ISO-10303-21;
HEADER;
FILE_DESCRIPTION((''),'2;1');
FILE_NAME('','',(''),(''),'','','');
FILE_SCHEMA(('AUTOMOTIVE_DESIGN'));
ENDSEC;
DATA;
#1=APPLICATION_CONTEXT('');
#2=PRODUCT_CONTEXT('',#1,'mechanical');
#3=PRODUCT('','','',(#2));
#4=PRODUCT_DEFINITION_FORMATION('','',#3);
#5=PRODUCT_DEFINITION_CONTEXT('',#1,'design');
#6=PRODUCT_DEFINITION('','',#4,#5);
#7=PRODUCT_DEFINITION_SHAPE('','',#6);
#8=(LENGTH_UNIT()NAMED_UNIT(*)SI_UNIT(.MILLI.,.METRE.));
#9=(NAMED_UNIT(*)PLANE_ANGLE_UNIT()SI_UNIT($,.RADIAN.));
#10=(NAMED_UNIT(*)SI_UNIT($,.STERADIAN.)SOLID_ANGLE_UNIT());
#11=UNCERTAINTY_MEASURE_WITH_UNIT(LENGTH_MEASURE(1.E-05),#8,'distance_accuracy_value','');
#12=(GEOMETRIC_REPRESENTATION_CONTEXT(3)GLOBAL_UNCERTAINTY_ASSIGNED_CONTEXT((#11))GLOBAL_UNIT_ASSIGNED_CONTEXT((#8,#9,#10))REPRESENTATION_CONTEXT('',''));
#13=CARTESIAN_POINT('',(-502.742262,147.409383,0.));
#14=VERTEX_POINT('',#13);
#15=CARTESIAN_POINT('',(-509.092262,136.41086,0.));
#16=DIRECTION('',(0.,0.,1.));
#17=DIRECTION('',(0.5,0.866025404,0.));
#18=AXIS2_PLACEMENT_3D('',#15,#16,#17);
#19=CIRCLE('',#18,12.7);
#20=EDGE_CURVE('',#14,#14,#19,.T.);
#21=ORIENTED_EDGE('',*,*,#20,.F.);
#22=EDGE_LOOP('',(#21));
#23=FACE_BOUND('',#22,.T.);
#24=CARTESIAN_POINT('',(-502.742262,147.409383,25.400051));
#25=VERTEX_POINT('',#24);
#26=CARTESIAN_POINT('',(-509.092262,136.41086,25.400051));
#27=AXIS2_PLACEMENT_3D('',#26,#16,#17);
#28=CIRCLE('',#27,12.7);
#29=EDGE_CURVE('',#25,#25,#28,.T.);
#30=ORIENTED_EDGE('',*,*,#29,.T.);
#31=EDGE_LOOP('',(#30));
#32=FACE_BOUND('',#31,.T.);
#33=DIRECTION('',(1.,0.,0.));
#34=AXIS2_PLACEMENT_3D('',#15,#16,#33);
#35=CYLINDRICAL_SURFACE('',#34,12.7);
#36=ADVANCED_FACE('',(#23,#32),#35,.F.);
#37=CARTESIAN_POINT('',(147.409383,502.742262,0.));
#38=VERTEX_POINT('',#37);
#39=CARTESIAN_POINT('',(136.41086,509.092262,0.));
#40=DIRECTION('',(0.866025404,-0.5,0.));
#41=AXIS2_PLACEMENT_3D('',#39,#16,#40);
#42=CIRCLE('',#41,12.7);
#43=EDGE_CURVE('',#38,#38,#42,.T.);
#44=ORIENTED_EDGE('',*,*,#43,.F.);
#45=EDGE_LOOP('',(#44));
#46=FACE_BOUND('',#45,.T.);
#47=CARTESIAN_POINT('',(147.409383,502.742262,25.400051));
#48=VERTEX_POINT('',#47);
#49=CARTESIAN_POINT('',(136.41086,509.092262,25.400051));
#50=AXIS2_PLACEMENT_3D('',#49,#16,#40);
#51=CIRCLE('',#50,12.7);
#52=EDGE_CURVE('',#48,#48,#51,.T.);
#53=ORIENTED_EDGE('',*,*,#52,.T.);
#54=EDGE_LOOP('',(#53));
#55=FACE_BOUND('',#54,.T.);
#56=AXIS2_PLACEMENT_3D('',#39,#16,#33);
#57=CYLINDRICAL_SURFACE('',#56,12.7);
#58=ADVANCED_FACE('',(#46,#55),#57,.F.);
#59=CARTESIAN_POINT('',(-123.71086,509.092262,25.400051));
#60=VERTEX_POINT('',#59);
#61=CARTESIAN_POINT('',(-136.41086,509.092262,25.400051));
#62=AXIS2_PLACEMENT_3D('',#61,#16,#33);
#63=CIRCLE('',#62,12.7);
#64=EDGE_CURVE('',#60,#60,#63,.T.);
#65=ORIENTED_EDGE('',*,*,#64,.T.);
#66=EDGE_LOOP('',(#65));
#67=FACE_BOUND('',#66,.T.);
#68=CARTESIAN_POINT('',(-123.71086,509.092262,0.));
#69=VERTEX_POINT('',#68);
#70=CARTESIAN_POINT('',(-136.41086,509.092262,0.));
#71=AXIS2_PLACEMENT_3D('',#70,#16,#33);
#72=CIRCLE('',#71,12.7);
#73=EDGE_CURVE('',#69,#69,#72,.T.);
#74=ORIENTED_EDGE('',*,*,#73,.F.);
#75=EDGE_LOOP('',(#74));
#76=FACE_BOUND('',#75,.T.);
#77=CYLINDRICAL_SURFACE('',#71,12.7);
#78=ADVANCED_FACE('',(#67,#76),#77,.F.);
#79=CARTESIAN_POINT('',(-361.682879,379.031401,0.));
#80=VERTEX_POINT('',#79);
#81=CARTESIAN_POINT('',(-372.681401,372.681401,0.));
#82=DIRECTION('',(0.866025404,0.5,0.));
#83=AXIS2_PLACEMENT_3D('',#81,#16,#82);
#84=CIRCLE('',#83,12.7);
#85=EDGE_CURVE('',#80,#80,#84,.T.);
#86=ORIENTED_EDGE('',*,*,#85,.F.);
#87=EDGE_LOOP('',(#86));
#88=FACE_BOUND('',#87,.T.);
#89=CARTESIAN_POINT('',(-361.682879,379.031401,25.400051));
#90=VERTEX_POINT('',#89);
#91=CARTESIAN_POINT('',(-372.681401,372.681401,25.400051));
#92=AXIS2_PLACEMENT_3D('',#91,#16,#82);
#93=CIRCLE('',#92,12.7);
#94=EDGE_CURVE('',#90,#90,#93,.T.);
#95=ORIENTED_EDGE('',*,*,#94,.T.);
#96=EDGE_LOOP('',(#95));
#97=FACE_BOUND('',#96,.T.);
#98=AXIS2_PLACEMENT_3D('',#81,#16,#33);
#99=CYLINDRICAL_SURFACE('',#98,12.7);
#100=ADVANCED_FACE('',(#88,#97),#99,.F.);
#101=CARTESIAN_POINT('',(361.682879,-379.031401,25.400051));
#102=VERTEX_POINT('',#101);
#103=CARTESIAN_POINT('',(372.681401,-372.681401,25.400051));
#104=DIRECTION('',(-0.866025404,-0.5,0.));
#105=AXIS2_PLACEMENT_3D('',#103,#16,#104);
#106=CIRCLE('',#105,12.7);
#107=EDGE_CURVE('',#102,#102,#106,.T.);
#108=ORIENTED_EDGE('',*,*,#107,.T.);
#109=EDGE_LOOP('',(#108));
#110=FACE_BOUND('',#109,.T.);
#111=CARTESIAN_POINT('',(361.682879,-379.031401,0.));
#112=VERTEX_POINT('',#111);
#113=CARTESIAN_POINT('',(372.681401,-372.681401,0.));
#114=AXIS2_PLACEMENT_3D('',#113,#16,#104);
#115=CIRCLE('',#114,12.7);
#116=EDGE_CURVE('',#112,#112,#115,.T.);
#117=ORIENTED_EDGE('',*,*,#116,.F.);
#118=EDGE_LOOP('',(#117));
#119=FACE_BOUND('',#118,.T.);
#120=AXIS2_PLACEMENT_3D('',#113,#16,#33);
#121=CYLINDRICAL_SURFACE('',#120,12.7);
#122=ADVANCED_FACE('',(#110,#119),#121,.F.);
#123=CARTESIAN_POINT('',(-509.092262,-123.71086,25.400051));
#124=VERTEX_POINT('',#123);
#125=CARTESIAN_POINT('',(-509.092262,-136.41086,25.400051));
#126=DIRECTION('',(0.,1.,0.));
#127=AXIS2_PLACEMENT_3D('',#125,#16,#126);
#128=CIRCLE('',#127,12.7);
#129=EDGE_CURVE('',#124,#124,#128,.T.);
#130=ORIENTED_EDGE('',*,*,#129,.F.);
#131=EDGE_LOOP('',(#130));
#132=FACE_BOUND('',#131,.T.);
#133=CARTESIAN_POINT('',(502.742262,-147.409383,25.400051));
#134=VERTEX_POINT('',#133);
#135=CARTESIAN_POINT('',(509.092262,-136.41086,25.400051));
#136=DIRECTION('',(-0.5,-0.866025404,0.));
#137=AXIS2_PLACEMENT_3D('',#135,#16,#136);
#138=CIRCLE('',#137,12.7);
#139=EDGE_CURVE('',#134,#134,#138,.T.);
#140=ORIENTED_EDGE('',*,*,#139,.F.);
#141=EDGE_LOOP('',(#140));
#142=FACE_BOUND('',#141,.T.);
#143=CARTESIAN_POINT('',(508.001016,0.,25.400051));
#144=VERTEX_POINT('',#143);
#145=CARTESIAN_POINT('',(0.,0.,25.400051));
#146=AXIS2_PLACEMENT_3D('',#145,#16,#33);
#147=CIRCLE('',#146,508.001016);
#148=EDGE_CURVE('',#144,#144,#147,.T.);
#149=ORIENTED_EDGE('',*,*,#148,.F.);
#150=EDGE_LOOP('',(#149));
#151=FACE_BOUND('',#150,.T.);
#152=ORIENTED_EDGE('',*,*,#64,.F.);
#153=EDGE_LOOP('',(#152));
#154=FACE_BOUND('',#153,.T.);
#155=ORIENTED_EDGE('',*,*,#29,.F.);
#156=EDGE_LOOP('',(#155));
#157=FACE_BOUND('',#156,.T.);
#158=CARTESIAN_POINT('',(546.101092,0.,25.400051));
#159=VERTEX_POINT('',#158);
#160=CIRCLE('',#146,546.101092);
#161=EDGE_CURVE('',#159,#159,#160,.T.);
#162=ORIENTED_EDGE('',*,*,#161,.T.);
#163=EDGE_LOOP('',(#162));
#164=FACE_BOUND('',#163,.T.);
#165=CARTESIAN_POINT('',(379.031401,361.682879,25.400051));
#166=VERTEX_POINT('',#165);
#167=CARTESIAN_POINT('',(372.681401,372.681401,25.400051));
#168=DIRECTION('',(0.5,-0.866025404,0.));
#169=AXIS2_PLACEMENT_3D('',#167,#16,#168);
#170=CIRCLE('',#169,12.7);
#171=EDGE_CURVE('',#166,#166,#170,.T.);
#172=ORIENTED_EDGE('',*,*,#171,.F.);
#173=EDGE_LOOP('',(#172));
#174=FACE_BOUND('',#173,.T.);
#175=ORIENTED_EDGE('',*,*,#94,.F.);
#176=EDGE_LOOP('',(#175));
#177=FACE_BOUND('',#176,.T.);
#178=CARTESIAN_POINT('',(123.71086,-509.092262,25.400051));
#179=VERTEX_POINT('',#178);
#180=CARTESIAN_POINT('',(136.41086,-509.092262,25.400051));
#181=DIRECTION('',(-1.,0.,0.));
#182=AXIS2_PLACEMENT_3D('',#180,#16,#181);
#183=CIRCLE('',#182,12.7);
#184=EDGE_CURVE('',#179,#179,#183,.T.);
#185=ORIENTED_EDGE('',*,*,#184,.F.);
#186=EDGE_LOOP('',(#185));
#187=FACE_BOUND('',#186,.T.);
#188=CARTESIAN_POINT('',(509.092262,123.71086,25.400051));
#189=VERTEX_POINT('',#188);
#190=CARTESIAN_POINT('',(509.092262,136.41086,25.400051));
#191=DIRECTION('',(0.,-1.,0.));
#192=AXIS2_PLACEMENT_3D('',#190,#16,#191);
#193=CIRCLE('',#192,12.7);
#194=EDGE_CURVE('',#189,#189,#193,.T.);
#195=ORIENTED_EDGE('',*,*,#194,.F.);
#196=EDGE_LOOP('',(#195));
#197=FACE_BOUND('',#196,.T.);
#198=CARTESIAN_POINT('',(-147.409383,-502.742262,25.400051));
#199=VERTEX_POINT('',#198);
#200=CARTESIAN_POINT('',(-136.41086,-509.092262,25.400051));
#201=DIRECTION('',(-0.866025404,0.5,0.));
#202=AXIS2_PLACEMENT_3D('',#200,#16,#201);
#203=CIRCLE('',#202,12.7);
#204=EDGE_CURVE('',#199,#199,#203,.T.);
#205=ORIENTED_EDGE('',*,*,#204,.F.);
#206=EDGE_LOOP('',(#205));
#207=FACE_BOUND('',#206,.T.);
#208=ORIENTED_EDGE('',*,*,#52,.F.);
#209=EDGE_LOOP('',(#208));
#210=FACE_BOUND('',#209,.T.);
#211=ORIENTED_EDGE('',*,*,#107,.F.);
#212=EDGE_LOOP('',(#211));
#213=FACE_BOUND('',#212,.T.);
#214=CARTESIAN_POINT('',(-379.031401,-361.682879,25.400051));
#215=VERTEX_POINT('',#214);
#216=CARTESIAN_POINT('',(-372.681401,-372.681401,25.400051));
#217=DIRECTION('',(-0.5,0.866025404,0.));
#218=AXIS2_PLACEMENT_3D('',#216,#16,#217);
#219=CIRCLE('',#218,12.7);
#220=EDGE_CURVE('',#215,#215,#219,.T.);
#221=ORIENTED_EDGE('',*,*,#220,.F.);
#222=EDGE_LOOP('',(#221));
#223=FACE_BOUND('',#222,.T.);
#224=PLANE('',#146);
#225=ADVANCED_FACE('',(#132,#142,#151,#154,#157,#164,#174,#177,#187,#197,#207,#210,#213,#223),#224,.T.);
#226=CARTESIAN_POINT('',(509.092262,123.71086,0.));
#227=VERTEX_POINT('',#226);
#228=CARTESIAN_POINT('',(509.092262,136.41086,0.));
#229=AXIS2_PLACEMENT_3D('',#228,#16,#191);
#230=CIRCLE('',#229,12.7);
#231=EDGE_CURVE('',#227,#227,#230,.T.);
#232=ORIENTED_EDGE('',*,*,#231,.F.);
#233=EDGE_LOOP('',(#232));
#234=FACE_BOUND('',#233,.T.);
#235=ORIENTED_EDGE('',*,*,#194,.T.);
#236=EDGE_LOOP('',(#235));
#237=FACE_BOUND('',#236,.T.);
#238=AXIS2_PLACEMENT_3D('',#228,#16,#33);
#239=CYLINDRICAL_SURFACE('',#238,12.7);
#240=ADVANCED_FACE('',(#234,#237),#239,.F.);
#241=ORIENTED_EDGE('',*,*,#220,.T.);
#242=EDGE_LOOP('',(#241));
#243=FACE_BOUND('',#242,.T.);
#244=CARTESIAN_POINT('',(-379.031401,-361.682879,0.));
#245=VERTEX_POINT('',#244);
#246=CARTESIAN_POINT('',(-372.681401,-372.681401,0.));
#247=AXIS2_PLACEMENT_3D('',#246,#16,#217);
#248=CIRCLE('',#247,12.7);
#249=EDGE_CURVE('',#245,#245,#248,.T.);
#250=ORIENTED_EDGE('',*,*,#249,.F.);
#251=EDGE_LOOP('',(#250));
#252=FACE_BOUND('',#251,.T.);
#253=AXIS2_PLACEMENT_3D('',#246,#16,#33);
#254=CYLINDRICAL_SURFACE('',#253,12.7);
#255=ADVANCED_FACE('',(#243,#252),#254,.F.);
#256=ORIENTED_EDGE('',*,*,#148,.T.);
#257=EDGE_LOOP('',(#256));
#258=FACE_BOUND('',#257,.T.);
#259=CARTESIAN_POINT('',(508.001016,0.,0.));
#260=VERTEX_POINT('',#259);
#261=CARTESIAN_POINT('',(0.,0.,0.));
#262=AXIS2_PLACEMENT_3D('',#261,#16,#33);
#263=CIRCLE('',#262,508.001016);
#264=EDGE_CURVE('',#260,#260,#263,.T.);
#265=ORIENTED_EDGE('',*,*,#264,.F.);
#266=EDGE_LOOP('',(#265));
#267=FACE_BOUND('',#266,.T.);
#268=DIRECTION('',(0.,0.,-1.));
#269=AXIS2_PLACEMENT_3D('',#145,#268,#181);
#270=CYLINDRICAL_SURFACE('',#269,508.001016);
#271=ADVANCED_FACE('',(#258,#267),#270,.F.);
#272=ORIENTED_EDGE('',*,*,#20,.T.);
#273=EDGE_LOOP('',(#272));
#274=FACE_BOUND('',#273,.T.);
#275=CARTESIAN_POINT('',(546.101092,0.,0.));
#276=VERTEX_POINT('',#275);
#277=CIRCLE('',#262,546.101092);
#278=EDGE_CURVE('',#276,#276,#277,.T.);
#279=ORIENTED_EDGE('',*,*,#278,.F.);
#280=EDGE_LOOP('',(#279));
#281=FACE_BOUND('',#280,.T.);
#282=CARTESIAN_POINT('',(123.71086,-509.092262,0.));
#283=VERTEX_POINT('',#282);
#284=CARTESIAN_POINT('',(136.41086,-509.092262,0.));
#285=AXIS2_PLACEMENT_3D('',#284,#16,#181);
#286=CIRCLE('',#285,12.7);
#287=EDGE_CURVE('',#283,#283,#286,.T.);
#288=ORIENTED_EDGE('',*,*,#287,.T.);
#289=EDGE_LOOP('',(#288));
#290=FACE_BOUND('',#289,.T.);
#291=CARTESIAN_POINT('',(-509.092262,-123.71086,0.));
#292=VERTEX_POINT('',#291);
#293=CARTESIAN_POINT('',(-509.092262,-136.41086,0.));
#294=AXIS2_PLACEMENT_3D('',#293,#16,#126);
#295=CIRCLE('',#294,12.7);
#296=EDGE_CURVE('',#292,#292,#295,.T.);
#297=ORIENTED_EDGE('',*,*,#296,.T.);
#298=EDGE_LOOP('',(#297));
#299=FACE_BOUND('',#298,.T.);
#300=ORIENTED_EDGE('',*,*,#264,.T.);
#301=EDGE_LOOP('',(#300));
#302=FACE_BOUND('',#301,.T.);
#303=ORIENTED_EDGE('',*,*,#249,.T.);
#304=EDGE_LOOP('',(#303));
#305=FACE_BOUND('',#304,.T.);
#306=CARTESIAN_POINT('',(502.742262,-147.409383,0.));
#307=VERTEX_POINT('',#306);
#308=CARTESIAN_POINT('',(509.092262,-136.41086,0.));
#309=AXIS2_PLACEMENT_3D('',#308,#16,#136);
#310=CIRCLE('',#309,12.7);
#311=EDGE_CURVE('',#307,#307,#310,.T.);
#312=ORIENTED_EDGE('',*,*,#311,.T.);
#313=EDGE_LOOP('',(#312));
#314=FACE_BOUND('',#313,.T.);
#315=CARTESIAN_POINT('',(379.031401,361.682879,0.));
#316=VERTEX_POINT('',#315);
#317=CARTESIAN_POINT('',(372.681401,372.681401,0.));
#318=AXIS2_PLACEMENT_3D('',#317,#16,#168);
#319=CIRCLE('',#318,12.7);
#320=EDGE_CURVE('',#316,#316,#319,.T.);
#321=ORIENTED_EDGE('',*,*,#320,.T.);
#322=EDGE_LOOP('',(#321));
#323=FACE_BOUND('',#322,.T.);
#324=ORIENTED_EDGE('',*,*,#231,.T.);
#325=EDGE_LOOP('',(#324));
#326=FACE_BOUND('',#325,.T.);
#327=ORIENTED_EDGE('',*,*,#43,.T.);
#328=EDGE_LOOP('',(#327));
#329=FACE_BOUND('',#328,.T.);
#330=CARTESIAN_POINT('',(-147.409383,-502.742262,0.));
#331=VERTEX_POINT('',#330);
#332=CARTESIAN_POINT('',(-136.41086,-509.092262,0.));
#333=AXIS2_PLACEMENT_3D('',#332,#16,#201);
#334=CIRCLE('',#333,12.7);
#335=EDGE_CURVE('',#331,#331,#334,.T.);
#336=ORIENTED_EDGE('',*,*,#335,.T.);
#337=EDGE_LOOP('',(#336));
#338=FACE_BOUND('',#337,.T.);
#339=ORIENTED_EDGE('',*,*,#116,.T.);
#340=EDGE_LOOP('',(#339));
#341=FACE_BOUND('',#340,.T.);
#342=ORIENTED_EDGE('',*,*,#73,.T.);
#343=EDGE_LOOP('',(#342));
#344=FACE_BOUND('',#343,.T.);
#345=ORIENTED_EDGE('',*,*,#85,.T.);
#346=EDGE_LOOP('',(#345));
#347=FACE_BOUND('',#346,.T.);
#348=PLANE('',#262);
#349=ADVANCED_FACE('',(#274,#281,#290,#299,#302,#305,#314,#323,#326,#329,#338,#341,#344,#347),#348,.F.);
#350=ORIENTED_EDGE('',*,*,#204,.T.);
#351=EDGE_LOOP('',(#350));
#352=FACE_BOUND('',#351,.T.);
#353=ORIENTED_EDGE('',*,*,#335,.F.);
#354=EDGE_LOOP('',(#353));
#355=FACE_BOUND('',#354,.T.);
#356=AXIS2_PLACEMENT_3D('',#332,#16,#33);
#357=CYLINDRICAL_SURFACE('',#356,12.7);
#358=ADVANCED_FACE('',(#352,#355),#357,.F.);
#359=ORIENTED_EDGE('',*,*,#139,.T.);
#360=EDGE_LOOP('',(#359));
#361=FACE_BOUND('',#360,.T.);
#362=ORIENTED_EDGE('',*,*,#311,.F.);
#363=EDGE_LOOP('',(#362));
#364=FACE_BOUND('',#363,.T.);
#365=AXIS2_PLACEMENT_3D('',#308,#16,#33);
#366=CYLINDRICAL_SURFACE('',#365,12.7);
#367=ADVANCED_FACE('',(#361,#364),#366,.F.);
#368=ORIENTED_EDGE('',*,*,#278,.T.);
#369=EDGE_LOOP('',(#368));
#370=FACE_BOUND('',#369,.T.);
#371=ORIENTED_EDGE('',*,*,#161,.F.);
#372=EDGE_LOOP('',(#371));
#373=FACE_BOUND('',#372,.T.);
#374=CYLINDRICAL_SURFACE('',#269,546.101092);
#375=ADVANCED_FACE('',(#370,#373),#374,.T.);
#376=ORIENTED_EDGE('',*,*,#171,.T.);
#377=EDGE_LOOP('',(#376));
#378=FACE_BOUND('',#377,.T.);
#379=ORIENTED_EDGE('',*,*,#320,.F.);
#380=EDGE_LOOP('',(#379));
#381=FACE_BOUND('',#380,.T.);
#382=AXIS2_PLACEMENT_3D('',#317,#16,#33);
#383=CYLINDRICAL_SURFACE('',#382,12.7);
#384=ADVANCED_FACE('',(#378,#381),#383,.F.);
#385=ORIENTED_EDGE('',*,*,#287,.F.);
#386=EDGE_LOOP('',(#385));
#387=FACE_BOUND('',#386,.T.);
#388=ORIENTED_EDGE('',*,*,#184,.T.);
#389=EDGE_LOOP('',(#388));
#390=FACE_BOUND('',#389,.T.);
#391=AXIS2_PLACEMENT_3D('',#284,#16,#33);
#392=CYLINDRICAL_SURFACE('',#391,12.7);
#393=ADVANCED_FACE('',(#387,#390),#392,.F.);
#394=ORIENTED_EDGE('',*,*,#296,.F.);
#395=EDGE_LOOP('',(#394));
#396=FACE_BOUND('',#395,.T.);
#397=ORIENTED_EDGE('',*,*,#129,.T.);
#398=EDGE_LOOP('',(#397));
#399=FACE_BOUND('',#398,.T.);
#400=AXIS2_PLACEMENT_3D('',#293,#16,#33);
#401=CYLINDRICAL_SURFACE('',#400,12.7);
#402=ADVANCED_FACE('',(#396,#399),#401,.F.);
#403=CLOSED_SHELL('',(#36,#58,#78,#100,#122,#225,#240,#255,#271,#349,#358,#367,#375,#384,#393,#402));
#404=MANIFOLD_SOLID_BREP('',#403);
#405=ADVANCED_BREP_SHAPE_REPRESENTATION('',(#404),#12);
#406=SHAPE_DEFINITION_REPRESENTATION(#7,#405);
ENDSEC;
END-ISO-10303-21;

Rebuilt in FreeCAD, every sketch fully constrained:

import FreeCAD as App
import Part
import Sketcher
from FreeCAD import Vector
Q = App.Units.Quantity

doc = App.newDocument("Part")
body = doc.addObject("PartDesign::Body", "Body")

sketch1 = body.newObject("Sketcher::SketchObject", "Sketch")
sketch1.AttachmentSupport = (doc.getObject("XY_Plane"), [""])
sketch1.MapMode = "FlatFace"
sketch1.addGeometry(Part.Circle(Vector(0, 0, 0), Vector(0, 0, 1), 546), False)
sketch1.addGeometry(Part.Circle(Vector(0, 0, 0), Vector(0, 0, 1), 508), False)
sketch1.addConstraint(Sketcher.Constraint("Coincident", 0, 3, -1, 1))
sketch1.addConstraint(Sketcher.Constraint("Coincident", 1, 3, -1, 1))
sketch1.addConstraint(Sketcher.Constraint("Diameter", 0, Q("1092.202184 mm")))
sketch1.addConstraint(Sketcher.Constraint("Diameter", 1, Q("1016.002032 mm")))
pad1 = body.newObject("PartDesign::Pad", "Pad")
pad1.Profile = sketch1
pad1.Length = 25.400051

sketch2 = body.newObject("Sketcher::SketchObject", "Sketch001")
sketch2.AttachmentSupport = (doc.getObject("XY_Plane"), [""])
sketch2.MapMode = "FlatFace"
sketch2.AttachmentOffset = App.Placement(Vector(0, 0, 25.400051), App.Rotation())
sketch2.addGeometry(Part.Circle(Vector(-136, 509, 0), Vector(0, 0, 1), 13), False)
sketch2.addConstraint(Sketcher.Constraint("Diameter", 0, Q("1 in")))
sketch2.addConstraint(Sketcher.Constraint("DistanceX", 0, 3, -1, 1, Q("136.41086 mm")))
sketch2.addConstraint(Sketcher.Constraint("DistanceY", -1, 1, 0, 3, Q("509.092262 mm")))
pocket1 = body.newObject("PartDesign::Pocket", "Pocket")
pocket1.Profile = sketch2
pocket1.Type = "ThroughAll"
doc.recompute()

polarpattern = body.newObject("PartDesign::PolarPattern", "PolarPattern")
polarpattern.Originals = [pocket1]
polarpattern.Axis = (doc.getObject("Z_Axis"), [""])
polarpattern.Angle = 360
polarpattern.Occurrences = 12
body.Tip = polarpattern

doc.recompute()
